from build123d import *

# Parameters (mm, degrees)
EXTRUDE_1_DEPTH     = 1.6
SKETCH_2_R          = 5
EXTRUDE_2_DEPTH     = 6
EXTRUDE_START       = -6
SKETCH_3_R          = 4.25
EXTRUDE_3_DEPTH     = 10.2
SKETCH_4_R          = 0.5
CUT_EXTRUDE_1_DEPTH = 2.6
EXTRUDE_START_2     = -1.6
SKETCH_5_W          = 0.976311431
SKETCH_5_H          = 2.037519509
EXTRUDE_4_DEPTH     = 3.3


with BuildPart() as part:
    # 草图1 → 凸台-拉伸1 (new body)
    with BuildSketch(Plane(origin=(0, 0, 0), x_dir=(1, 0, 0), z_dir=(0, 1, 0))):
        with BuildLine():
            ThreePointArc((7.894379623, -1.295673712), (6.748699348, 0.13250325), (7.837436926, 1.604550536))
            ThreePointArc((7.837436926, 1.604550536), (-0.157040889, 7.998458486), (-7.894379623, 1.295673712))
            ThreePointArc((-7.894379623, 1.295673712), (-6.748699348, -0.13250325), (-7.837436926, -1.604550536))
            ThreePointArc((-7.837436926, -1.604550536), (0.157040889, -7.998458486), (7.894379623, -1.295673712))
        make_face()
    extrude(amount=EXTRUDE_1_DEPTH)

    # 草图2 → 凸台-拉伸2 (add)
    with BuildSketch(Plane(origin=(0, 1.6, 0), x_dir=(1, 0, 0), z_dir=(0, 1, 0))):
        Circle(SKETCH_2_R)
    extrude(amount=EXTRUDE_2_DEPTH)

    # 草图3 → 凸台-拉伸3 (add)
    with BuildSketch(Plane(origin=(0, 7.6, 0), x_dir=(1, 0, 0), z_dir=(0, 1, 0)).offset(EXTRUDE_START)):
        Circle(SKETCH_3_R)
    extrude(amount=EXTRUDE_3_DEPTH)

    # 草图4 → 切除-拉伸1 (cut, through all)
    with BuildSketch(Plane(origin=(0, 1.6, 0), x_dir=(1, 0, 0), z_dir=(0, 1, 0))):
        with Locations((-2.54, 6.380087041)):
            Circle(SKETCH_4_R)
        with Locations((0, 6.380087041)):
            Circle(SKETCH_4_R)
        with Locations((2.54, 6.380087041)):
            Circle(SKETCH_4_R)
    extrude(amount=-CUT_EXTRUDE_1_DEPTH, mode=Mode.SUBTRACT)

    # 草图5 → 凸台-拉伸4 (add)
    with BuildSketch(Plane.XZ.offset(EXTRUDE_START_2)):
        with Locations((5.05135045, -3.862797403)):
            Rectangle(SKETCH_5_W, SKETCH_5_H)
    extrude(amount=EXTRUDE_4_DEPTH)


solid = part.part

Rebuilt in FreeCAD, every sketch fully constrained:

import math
import FreeCAD as App
import Part
import Sketcher
from FreeCAD import Vector
Q = App.Units.Quantity


def add_polygon(sketch, points):
    """Adds a closed chain of lines whose ends are joined by coincident constraints."""
    first, n = sketch.GeometryCount, len(points)
    for a, b in zip(points, points[1:] + points[:1]):
        sketch.addGeometry(Part.LineSegment(App.Vector(*a, 0), App.Vector(*b, 0)), False)
    for i in range(n):
        sketch.addConstraint(Sketcher.Constraint("Coincident", first + i, 2, first + (i + 1) % n, 1))

doc = App.newDocument("Part")
body = doc.addObject("PartDesign::Body", "Body")

sketch1 = body.newObject("Sketcher::SketchObject", "Sketch")
sketch1.AttachmentSupport = (doc.getObject("XZ_Plane"), [""])
sketch1.MapMode = "FlatFace"
sketch1.addGeometry([
    Part.ArcOfCircle(Part.Circle(Vector(8.24841, -0.161948, 0), Vector(0, 0, 1), 1.5), math.radians(103.651783), math.radians(254.098627)),
    Part.ArcOfCircle(Part.Circle(Vector(0, 0, 0), Vector(0, 0, 1), 8), math.radians(-170.679366), math.radians(-11.570224)),
    Part.ArcOfCircle(Part.Circle(Vector(-8.24841, 0.161948, 0), Vector(0, 0, 1), 1.5), math.radians(-76.348217), math.radians(74.098627)),
    Part.ArcOfCircle(Part.Circle(Vector(0, 0, 0), Vector(0, 0, 1), 8), math.radians(9.320634), math.radians(168.429776)),
], False)
sketch1.addConstraint([
    Sketcher.Constraint("Coincident", 0, 2, 1, 2),
    Sketcher.Constraint("Coincident", 1, 1, 2, 1),
    Sketcher.Constraint("Coincident", 2, 2, 3, 2),
    Sketcher.Constraint("Coincident", 3, 1, 0, 1),
    Sketcher.Constraint("Coincident", 1, 3, -1, 1),
    Sketcher.Constraint("Coincident", 3, 3, -1, 1),
    Sketcher.Constraint("Equal", 0, 2),
    Sketcher.Constraint("Equal", 1, 3),
    Sketcher.Constraint("Symmetric", 0, 3, 2, 3, -1, 1),
    Sketcher.Constraint("Radius", 1, Q("8 mm")),
    Sketcher.Constraint("Radius", 0, Q("1.5 mm")),
    Sketcher.Constraint("DistanceY", 0, 2, 2, 3, Q("1.766499 mm")),
    Sketcher.Constraint("DistanceY", 0, 2, 2, 2, Q("3.209101 mm")),
])
pad1 = body.newObject("PartDesign::Pad", "Pad")
pad1.Profile = sketch1
pad1.Length = 1.6
pad1.Reversed = True

sketch2 = body.newObject("Sketcher::SketchObject", "Sketch001")
sketch2.AttachmentSupport = (doc.getObject("XZ_Plane"), [""])
sketch2.MapMode = "FlatFace"
sketch2.AttachmentOffset = App.Placement(Vector(0, 0, -1.6), App.Rotation())
sketch2.addGeometry(Part.Circle(Vector(0, 0, 0), Vector(0, 0, 1), 5), False)
sketch2.addConstraint([
    Sketcher.Constraint("Coincident", 0, 3, -1, 1),
    Sketcher.Constraint("Diameter", 0, Q("10 mm")),
])
pad2 = body.newObject("PartDesign::Pad", "Pad001")
pad2.Profile = sketch2
pad2.Length = 6
pad2.Reversed = True

sketch3 = body.newObject("Sketcher::SketchObject", "Sketch002")
sketch3.AttachmentSupport = (doc.getObject("XZ_Plane"), [""])
sketch3.MapMode = "FlatFace"
sketch3.AttachmentOffset = App.Placement(Vector(0, 0, -1.6), App.Rotation())
sketch3.addGeometry(Part.Circle(Vector(0, 0, 0), Vector(0, 0, 1), 4.25), False)
sketch3.addConstraint([
    Sketcher.Constraint("Coincident", 0, 3, -1, 1),
    Sketcher.Constraint("Diameter", 0, Q("8.5 mm")),
])
pad3 = body.newObject("PartDesign::Pad", "Pad002")
pad3.Profile = sketch3
pad3.Length = 10.2
pad3.Reversed = True

sketch4 = body.newObject("Sketcher::SketchObject", "Sketch003")
sketch4.AttachmentSupport = (doc.getObject("XZ_Plane"), [""])
sketch4.MapMode = "FlatFace"
sketch4.AttachmentOffset = App.Placement(Vector(0, 0, -1.6), App.Rotation())
sketch4.addGeometry([
    Part.Circle(Vector(-2.54, -6.380087, 0), Vector(0, 0, 1), 0.5),
    Part.Circle(Vector(0, -6.380087, 0), Vector(0, 0, 1), 0.5),
    Part.Circle(Vector(2.54, -6.380087, 0), Vector(0, 0, 1), 0.5),
], False)
sketch4.addConstraint([
    Sketcher.Constraint("Equal", 0, 1),
    Sketcher.Constraint("Equal", 1, 2),
    Sketcher.Constraint("Symmetric", 0, 3, 2, 3, -2),
    Sketcher.Constraint("PointOnObject", 1, 3, -2),
    Sketcher.Constraint("Horizontal", 0, 3, 1, 3),
    Sketcher.Constraint("Diameter", 0, Q("1 mm")),
    Sketcher.Constraint("DistanceX", 0, 3, -1, 1, Q("2.54 mm")),
    Sketcher.Constraint("DistanceY", 0, 3, -1, 1, Q("6.380087 mm")),
])
pocket1 = body.newObject("PartDesign::Pocket", "Pocket")
pocket1.Profile = sketch4
pocket1.Type = "ThroughAll"
pocket1.Reversed = True

sketch5 = body.newObject("Sketcher::SketchObject", "Sketch004")
sketch5.AttachmentSupport = (doc.getObject("XZ_Plane"), [""])
sketch5.MapMode = "FlatFace"
sketch5.AttachmentOffset = App.Placement(Vector(0, 0, -1.6), App.Rotation())
add_polygon(sketch5, [(4.563195, -2.844038), (4.563195, -4.881557), (5.539506, -4.881557), (5.539506, -2.844038)])
sketch5.addConstraint([
    Sketcher.Constraint("Vertical", 0),
    Sketcher.Constraint("Horizontal", 1),
    Sketcher.Constraint("Vertical", 2),
    Sketcher.Constraint("Horizontal", 3),
    Sketcher.Constraint("DistanceX", 1, 1, 1, 2, Q("0.976311 mm")),
    Sketcher.Constraint("DistanceY", 0, 2, 0, 1, Q("2.03752 mm")),
    Sketcher.Constraint("DistanceX", -1, 1, 0, 2, Q("4.563195 mm")),
    Sketcher.Constraint("DistanceY", 0, 2, -1, 1, Q("4.881557 mm")),
])
pad4 = body.newObject("PartDesign::Pad", "Pad003")
pad4.Profile = sketch5
pad4.Length = 3.3

doc.recompute()
